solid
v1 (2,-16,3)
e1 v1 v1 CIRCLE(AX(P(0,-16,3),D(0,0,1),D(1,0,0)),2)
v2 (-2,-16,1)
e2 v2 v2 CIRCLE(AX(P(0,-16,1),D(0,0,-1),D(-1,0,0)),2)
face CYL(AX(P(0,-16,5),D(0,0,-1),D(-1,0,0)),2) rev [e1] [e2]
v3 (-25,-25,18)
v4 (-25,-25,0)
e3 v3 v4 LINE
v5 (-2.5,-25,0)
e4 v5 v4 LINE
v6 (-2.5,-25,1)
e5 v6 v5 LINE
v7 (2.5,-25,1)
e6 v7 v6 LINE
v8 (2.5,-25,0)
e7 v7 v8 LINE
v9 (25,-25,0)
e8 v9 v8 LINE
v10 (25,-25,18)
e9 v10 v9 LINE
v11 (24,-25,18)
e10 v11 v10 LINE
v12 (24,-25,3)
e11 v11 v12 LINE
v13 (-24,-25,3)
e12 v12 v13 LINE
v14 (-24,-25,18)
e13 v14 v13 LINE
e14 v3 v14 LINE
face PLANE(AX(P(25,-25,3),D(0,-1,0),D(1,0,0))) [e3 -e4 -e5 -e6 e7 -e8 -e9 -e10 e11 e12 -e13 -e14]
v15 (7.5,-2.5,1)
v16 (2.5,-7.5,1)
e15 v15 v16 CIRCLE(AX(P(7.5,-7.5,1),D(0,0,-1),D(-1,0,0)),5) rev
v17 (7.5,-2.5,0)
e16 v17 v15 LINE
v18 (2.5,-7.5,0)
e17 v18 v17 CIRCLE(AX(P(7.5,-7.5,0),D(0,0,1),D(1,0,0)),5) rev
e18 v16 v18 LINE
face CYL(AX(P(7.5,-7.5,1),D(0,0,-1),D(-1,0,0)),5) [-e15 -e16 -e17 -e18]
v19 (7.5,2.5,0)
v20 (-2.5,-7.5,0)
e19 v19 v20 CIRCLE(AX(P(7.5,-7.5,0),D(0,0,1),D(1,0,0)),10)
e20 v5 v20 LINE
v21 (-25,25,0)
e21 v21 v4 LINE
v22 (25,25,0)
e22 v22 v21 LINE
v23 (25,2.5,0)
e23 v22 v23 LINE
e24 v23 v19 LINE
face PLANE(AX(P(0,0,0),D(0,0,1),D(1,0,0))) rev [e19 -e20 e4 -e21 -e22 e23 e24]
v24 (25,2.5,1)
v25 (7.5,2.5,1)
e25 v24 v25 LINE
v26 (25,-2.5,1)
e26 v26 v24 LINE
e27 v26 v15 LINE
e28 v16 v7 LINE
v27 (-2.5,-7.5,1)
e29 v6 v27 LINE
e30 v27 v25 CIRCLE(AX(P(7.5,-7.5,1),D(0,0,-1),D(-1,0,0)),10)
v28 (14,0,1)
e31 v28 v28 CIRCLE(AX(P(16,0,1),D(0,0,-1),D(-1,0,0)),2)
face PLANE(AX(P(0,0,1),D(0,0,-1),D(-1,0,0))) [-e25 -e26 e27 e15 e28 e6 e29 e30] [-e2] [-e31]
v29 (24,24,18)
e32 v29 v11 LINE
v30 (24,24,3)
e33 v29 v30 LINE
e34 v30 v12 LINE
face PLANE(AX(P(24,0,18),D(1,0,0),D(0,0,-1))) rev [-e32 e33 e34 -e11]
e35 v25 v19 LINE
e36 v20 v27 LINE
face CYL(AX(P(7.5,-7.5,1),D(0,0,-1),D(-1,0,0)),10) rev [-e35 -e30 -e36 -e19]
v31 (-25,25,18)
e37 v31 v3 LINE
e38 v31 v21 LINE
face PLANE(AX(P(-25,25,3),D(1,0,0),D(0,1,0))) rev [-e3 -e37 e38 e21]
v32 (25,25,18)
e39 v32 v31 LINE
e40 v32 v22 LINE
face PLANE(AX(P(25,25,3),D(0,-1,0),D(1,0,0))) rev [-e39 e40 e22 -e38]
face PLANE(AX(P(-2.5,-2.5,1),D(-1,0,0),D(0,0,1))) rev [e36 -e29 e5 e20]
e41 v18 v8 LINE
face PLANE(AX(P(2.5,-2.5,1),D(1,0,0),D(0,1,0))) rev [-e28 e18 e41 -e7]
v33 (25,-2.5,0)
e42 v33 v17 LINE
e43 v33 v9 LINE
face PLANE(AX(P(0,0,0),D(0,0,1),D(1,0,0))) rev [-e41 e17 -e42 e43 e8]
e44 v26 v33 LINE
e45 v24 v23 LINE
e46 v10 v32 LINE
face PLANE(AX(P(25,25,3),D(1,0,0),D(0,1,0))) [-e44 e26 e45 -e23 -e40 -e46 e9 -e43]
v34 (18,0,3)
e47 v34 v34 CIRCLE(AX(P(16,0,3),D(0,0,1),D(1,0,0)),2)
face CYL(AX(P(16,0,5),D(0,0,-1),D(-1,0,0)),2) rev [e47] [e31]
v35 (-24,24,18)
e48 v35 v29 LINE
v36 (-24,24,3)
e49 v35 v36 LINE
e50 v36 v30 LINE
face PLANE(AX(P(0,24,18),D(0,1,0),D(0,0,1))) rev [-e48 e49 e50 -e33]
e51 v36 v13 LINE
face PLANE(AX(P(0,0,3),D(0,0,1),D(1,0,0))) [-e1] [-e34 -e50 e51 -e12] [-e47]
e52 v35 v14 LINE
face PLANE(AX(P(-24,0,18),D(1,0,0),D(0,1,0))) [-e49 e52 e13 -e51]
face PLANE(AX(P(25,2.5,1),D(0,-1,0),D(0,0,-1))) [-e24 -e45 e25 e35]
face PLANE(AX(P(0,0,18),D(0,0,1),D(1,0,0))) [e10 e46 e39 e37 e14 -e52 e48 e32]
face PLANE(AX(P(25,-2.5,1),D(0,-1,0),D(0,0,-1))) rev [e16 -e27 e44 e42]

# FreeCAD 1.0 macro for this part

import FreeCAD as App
import Part
import Sketcher

V = App.Vector
Q = App.Units.Quantity


def edges_at(feature, points):
    """Names of the edges that pass closest to the given points."""
    edges = feature.Shape.Edges
    near = lambda p: min(range(len(edges)), key=lambda i: edges[i].distToShape(Part.Vertex(*p))[0])
    return sorted({f"Edge{near(p) + 1}" for p in points})


def add_polygon(sketch, points):
    """Adds a closed chain of lines whose ends are joined by coincident constraints."""
    first, n = sketch.GeometryCount, len(points)
    for a, b in zip(points, points[1:] + points[:1]):
        sketch.addGeometry(Part.LineSegment(App.Vector(*a, 0), App.Vector(*b, 0)), False)
    for i in range(n):
        sketch.addConstraint(Sketcher.Constraint("Coincident", first + i, 2, first + (i + 1) % n, 1))

doc = App.newDocument("Part")
body = doc.addObject("PartDesign::Body", "Body")

sketch1 = body.newObject("Sketcher::SketchObject", "Sketch")
sketch1.AttachmentSupport = (doc.getObject("XY_Plane"), [""])
sketch1.MapMode = "FlatFace"
add_polygon(sketch1, [(-25, 25), (-25, -25), (25, -25), (25, 25)])
sketch1.addConstraint([
    Sketcher.Constraint("Vertical", 0),
    Sketcher.Constraint("Horizontal", 1),
    Sketcher.Constraint("Vertical", 2),
    Sketcher.Constraint("Horizontal", 3),
    Sketcher.Constraint("Symmetric", 0, 2, 2, 2, -1, 1),
    Sketcher.Constraint("Equal", 3, 0),
    Sketcher.Constraint("DistanceX", 1, 1, 1, 2, Q("50 mm")),
])
pad1 = body.newObject("PartDesign::Pad", "Pad")
pad1.Profile = sketch1
pad1.Length = 3

sketch2 = body.newObject("Sketcher::SketchObject", "Sketch001")
sketch2.AttachmentSupport = (doc.getObject("XY_Plane"), [""])
sketch2.MapMode = "FlatFace"
add_polygon(sketch2, [(25, -2), (2, -2), (2, -25), (-2, -25), (-2, 2), (25, 2)])
sketch2.addConstraint([
    Sketcher.Constraint("Horizontal", 0),
    Sketcher.Constraint("Vertical", 1),
    Sketcher.Constraint("Horizontal", 2),
    Sketcher.Constraint("Vertical", 3),
    Sketcher.Constraint("Horizontal", 4),
    Sketcher.Constraint("Vertical", 5),
    Sketcher.Constraint("Symmetric", 0, 2, 3, 2, -1, 1),
    Sketcher.Constraint("Equal", 0, 1),
    Sketcher.Constraint("Equal", 4, 3),
    Sketcher.Constraint("DistanceX", 2, 2, 2, 1, Q("5 mm")),
    Sketcher.Constraint("DistanceX", 0, 2, 0, 1, Q("22.5 mm")),
])
pocket1 = body.newObject("PartDesign::Pocket", "Pocket")
pocket1.Profile = sketch2
pocket1.Length = 1
pocket1.Reversed = True

sketch3 = body.newObject("Sketcher::SketchObject", "Sketch002")
sketch3.AttachmentSupport = (doc.getObject("XY_Plane"), [""])
sketch3.MapMode = "FlatFace"
sketch3.AttachmentOffset = App.Placement(V(0, 0, 3), App.Rotation())
add_polygon(sketch3, [(25, 25), (-25, 25), (-25, -25), (-24, -25), (-24, 24), (24, 24), (24, -25), (25, -25)])
sketch3.addConstraint([
    Sketcher.Constraint("Horizontal", 0),
    Sketcher.Constraint("Vertical", 1),
    Sketcher.Constraint("Horizontal", 2),
    Sketcher.Constraint("Vertical", 3),
    Sketcher.Constraint("Horizontal", 4),
    Sketcher.Constraint("Vertical", 5),
    Sketcher.Constraint("Horizontal", 6),
    Sketcher.Constraint("Vertical", 7),
    Sketcher.Constraint("Symmetric", 0, 2, 6, 2, -1, 1),
    Sketcher.Constraint("Symmetric", 2, 2, 5, 2, -2),
    Sketcher.Constraint("Equal", 0, 1),
    Sketcher.Constraint("DistanceX", 0, 2, 0, 1, Q("50 mm")),
    Sketcher.Constraint("DistanceX", 2, 1, 2, 2, Q("1 mm")),
    Sketcher.Constraint("DistanceY", 3, 1, 3, 2, Q("49 mm")),
])
pad2 = body.newObject("PartDesign::Pad", "Pad001")
pad2.Profile = sketch3
pad2.Length = 15

sketch4 = body.newObject("Sketcher::SketchObject", "Sketch003")
sketch4.AttachmentSupport = (doc.getObject("XY_Plane"), [""])
sketch4.MapMode = "FlatFace"
sketch4.AttachmentOffset = App.Placement(V(0, 0, 1), App.Rotation())
sketch4.addGeometry([
    Part.Circle(V(16, 0, 0), V(0, 0, 1), 2),
    Part.Circle(V(0, -16, 0), V(0, 0, 1), 2),
], False)
sketch4.addConstraint([
    Sketcher.Constraint("Equal", 0, 1),
    Sketcher.Constraint("PointOnObject", 0, 3, -1),
    Sketcher.Constraint("PointOnObject", 1, 3, -2),
    Sketcher.Constraint("Diameter", 0, Q("4 mm")),
    Sketcher.Constraint("DistanceX", -1, 1, 0, 3, Q("16 mm")),
    Sketcher.Constraint("DistanceY", 1, 3, -1, 1, Q("16 mm")),
])
pocket2 = body.newObject("PartDesign::Pocket", "Pocket001")
pocket2.Profile = sketch4
pocket2.Length = 4
pocket2.Reversed = True
doc.recompute()

fillet = body.newObject("PartDesign::Fillet", "Fillet")
fillet.Base = (pocket2, edges_at(pocket2, [(-2.5, 2.5, 0.5)]))
fillet.Radius = 10
doc.recompute()

fillet2 = body.newObject("PartDesign::Fillet", "Fillet001")
fillet2.Base = (fillet, edges_at(fillet, [(2.5, -2.5, 0.5)]))
fillet2.Radius = 5

doc.recompute()
